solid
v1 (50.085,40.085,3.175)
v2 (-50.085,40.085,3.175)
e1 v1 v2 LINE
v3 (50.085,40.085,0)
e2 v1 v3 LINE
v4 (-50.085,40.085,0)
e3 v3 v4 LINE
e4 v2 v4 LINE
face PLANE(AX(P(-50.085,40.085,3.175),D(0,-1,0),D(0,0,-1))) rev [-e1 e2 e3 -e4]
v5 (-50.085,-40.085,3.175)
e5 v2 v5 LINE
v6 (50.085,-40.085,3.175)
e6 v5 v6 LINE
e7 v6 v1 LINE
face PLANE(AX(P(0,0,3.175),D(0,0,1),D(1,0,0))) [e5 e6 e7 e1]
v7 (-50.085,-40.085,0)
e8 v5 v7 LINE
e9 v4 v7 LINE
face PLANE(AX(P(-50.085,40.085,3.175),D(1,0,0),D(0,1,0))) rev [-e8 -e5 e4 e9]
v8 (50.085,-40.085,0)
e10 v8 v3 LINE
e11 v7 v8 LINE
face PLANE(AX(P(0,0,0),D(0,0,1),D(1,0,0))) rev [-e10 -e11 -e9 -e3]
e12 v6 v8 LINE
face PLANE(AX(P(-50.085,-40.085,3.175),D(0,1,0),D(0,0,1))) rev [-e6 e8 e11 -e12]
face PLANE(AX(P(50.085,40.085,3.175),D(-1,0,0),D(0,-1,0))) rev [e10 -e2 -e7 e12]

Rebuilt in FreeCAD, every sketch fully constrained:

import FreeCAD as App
import Part
import Sketcher
from FreeCAD import Vector
Q = App.Units.Quantity


def add_polygon(sketch, points):
    """Adds a closed chain of lines whose ends are joined by coincident constraints."""
    first, n = sketch.GeometryCount, len(points)
    for a, b in zip(points, points[1:] + points[:1]):
        sketch.addGeometry(Part.LineSegment(App.Vector(*a, 0), App.Vector(*b, 0)), False)
    for i in range(n):
        sketch.addConstraint(Sketcher.Constraint("Coincident", first + i, 2, first + (i + 1) % n, 1))

doc = App.newDocument("Part")
body = doc.addObject("PartDesign::Body", "Body")

# Sketch on XY plane
sketch1 = body.newObject("Sketcher::SketchObject", "Sketch")
sketch1.AttachmentSupport = (doc.getObject("XY_Plane"), [""])
sketch1.MapMode = "FlatFace"
add_polygon(sketch1, [(-50.085, 40.085), (-50.085, -40.085), (50.085, -40.085), (50.085, 40.085)])  # lines 0-3
sketch1.addConstraint(Sketcher.Constraint("Vertical", 0))
sketch1.addConstraint(Sketcher.Constraint("Horizontal", 1))
sketch1.addConstraint(Sketcher.Constraint("Vertical", 2))
sketch1.addConstraint(Sketcher.Constraint("Horizontal", 3))
sketch1.addConstraint(Sketcher.Constraint("Symmetric", 0, 2, 2, 2, -1, 1))
sketch1.addConstraint(Sketcher.Constraint("DistanceX", 1, 1, 1, 2, 100.17))
sketch1.addConstraint(Sketcher.Constraint("DistanceY", 0, 2, 0, 1, 80.17))
pad1 = body.newObject("PartDesign::Pad", "Pad")
pad1.Profile = sketch1
pad1.Length = Q("0.125 in")

doc.recompute()
